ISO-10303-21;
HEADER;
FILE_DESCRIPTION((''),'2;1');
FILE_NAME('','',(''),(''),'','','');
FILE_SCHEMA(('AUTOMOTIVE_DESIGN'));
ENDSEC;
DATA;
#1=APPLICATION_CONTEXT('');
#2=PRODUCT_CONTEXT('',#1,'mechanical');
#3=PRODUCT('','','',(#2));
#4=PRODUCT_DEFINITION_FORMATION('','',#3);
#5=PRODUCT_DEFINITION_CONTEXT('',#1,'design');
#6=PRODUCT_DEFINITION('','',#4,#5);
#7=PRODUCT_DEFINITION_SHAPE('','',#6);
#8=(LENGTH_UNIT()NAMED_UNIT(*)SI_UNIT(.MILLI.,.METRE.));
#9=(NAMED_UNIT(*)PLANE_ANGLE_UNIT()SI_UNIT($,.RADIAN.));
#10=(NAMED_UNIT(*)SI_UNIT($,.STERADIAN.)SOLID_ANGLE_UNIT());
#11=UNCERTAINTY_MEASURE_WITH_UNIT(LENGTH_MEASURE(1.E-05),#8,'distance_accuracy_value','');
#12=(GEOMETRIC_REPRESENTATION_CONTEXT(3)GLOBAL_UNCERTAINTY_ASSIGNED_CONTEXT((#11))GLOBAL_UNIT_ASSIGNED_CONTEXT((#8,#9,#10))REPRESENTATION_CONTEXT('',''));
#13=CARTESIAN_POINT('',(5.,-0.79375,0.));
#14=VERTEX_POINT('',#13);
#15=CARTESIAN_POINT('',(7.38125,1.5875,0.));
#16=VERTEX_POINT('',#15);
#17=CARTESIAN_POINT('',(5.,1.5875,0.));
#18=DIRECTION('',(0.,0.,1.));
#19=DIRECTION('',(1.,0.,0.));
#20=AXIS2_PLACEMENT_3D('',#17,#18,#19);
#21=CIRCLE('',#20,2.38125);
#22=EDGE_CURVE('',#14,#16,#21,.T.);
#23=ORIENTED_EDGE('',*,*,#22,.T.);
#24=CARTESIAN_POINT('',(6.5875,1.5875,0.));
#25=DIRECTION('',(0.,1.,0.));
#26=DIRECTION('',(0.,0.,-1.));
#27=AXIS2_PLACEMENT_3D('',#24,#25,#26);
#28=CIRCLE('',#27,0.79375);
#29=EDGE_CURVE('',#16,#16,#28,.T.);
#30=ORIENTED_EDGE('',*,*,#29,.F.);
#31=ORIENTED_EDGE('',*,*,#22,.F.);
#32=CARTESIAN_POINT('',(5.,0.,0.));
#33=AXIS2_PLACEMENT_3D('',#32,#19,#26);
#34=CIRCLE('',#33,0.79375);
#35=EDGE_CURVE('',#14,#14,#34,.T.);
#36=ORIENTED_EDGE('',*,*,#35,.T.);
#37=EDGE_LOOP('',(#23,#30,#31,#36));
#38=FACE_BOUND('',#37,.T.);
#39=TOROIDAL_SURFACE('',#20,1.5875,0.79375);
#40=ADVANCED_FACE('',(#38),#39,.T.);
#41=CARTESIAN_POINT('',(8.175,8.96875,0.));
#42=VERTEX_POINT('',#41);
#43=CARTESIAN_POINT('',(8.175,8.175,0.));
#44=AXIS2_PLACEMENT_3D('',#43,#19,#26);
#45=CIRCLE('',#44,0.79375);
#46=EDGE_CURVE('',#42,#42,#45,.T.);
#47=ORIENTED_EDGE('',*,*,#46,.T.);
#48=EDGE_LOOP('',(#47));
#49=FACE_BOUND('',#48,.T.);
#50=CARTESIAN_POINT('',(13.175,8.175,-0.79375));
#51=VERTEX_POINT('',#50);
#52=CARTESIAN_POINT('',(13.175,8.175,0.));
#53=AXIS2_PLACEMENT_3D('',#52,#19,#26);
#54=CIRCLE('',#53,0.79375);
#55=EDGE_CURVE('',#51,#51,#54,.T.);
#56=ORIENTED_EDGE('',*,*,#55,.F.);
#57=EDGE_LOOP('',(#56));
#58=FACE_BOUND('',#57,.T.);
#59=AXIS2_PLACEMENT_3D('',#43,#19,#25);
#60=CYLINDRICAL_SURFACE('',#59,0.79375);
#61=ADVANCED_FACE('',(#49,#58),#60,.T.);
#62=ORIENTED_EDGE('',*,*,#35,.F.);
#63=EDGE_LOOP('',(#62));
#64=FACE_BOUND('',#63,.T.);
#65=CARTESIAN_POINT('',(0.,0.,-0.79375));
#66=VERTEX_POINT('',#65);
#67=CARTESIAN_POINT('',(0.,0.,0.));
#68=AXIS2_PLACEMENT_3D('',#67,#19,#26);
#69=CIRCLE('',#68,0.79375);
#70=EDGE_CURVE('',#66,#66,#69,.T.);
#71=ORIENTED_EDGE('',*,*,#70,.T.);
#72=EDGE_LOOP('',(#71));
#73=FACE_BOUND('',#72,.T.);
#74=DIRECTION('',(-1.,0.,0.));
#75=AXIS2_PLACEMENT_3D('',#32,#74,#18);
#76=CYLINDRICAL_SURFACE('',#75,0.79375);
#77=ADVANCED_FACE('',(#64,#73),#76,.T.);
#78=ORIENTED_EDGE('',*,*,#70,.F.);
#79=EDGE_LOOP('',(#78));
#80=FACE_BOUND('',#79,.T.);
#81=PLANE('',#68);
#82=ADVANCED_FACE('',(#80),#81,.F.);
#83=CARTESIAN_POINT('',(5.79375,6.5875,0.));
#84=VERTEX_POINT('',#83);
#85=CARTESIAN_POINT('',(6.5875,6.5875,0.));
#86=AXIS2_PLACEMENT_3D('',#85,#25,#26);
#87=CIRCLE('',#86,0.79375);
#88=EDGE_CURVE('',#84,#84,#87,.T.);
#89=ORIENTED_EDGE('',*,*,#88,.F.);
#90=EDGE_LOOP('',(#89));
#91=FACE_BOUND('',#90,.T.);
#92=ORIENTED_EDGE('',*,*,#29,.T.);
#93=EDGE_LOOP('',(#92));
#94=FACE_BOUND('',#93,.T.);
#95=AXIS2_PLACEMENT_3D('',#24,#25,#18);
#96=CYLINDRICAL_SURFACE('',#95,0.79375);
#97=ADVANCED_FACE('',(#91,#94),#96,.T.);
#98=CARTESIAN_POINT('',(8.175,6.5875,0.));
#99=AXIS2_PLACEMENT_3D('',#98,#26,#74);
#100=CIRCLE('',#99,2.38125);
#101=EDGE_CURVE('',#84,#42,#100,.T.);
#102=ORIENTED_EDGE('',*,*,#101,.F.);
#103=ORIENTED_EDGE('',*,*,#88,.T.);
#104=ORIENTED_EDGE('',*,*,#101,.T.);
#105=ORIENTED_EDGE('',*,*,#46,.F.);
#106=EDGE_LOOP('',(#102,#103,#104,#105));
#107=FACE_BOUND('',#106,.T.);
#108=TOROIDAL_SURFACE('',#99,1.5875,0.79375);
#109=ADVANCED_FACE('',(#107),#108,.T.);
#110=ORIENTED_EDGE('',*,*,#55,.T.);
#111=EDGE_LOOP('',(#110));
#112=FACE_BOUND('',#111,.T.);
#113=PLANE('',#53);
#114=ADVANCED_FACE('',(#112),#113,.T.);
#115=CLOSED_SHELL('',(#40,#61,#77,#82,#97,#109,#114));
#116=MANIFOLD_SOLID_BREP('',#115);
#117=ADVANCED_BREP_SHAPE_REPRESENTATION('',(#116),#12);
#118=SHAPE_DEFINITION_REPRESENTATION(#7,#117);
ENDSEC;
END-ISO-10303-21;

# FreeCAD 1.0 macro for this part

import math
import FreeCAD as App
import Part
import Sketcher
Q = App.Units.Quantity

doc = App.newDocument("Part")
body = doc.addObject("PartDesign::Body", "Body")

# Sketch on YZ plane
sketch1 = doc.addObject("Sketcher::SketchObject", "Sketch")
body.addObject(sketch1)
sketch1.AttachmentSupport = (doc.YZ_Plane, [""])
sketch1.MapMode = "FlatFace"
sketch1.addGeometry(Part.Circle(App.Vector(0, 0, 0), App.Vector(0, 0, 1), 0.8), False)
sketch1.addConstraint([
    Sketcher.Constraint("Coincident", 0, 3, -1, 1),
    Sketcher.Constraint("Diameter", 0, Q("0.0625 in")),
])

# Sketch on XY plane
sketch2 = doc.addObject("Sketcher::SketchObject", "Sketch001")
body.addObject(sketch2)
sketch2.AttachmentSupport = (doc.XY_Plane, [""])
sketch2.MapMode = "FlatFace"
sketch2.addGeometry([
    Part.LineSegment(App.Vector(0, 0, 0), App.Vector(5, 0, 0)),  # 0
    Part.ArcOfCircle(Part.Circle(App.Vector(5, 1.6, 0), App.Vector(0, 0, 1), 1.6), math.radians(-90), math.radians(0)),  # 1
    Part.LineSegment(App.Vector(6.6, 1.6, 0), App.Vector(6.6, 6.6, 0)),  # 2
    Part.ArcOfCircle(Part.Circle(App.Vector(8.2, 6.6, 0), App.Vector(0, 0, 1), 1.6), math.radians(90), math.radians(180)),  # 3
    Part.LineSegment(App.Vector(8.2, 8.2, 0), App.Vector(13.2, 8.2, 0)),  # 4
], False)
sketch2.addConstraint([
    Sketcher.Constraint("Tangent", 0, 2, 1, 1),
    Sketcher.Constraint("Tangent", 1, 2, 2, 1),
    Sketcher.Constraint("Tangent", 2, 2, 3, 2),
    Sketcher.Constraint("Tangent", 3, 1, 4, 1),
    Sketcher.Constraint("Horizontal", 0),
    Sketcher.Constraint("Vertical", 2),
    Sketcher.Constraint("Horizontal", 4),
    Sketcher.Constraint("Coincident", 0, 1, -1, 1),
    Sketcher.Constraint("Equal", 1, 3),
    Sketcher.Constraint("Equal", 0, 4),
    Sketcher.Constraint("Equal", 4, 2),
    Sketcher.Constraint("Radius", 1, Q("0.0625 in")),
    Sketcher.Constraint("DistanceX", 0, 1, 0, 2, Q("5 mm")),
])
doc.recompute()

additivepipe = doc.addObject("PartDesign::AdditivePipe", "AdditivePipe")
body.addObject(additivepipe)
additivepipe.Profile = sketch1
additivepipe.Spine = (sketch2, ["Edge1", "Edge2", "Edge3", "Edge4", "Edge5"])

doc.recompute()
